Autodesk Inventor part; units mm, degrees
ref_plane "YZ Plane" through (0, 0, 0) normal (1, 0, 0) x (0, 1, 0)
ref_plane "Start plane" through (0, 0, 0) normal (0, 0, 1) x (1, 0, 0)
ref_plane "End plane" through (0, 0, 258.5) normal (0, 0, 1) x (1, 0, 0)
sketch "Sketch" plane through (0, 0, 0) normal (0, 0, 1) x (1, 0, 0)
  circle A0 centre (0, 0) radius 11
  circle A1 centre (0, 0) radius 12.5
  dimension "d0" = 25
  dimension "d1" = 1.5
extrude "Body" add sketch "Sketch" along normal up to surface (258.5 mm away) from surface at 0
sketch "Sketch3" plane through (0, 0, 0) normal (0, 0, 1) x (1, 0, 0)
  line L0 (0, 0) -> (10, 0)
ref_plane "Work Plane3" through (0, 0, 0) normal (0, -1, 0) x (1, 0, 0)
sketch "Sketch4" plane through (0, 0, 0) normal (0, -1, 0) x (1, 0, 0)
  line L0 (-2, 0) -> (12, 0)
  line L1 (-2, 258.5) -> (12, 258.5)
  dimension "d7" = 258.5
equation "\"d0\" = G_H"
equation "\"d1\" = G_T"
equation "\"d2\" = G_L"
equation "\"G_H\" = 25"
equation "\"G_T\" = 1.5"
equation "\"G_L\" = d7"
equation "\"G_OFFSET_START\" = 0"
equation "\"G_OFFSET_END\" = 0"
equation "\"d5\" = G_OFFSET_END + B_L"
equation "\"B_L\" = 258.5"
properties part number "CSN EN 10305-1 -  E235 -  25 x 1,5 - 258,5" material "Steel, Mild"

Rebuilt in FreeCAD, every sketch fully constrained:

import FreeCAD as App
import Part
import Sketcher

V = App.Vector

doc = App.newDocument("Part")
body = doc.addObject("PartDesign::Body", "Body")

# Sketch on XY plane
sketch1 = body.newObject("Sketcher::SketchObject", "Sketch")
sketch1.AttachmentSupport = (doc.getObject("XY_Plane"), [""])
sketch1.MapMode = "FlatFace"
sketch1.addGeometry([
    Part.Circle(V(0, 0, 0), V(0, 0, 1), 12),
    Part.Circle(V(0, 0, 0), V(0, 0, 1), 11),
], False)
sketch1.addConstraint([
    Sketcher.Constraint("Coincident", 0, 3, -1, 1),
    Sketcher.Constraint("Coincident", 1, 3, -1, 1),
    Sketcher.Constraint("Diameter", 0, 25.0),
    Sketcher.Constraint("Diameter", 1, 22.0),
])
pad1 = body.newObject("PartDesign::Pad", "Pad")
pad1.Profile = sketch1
pad1.Length = 258.5

doc.recompute()
